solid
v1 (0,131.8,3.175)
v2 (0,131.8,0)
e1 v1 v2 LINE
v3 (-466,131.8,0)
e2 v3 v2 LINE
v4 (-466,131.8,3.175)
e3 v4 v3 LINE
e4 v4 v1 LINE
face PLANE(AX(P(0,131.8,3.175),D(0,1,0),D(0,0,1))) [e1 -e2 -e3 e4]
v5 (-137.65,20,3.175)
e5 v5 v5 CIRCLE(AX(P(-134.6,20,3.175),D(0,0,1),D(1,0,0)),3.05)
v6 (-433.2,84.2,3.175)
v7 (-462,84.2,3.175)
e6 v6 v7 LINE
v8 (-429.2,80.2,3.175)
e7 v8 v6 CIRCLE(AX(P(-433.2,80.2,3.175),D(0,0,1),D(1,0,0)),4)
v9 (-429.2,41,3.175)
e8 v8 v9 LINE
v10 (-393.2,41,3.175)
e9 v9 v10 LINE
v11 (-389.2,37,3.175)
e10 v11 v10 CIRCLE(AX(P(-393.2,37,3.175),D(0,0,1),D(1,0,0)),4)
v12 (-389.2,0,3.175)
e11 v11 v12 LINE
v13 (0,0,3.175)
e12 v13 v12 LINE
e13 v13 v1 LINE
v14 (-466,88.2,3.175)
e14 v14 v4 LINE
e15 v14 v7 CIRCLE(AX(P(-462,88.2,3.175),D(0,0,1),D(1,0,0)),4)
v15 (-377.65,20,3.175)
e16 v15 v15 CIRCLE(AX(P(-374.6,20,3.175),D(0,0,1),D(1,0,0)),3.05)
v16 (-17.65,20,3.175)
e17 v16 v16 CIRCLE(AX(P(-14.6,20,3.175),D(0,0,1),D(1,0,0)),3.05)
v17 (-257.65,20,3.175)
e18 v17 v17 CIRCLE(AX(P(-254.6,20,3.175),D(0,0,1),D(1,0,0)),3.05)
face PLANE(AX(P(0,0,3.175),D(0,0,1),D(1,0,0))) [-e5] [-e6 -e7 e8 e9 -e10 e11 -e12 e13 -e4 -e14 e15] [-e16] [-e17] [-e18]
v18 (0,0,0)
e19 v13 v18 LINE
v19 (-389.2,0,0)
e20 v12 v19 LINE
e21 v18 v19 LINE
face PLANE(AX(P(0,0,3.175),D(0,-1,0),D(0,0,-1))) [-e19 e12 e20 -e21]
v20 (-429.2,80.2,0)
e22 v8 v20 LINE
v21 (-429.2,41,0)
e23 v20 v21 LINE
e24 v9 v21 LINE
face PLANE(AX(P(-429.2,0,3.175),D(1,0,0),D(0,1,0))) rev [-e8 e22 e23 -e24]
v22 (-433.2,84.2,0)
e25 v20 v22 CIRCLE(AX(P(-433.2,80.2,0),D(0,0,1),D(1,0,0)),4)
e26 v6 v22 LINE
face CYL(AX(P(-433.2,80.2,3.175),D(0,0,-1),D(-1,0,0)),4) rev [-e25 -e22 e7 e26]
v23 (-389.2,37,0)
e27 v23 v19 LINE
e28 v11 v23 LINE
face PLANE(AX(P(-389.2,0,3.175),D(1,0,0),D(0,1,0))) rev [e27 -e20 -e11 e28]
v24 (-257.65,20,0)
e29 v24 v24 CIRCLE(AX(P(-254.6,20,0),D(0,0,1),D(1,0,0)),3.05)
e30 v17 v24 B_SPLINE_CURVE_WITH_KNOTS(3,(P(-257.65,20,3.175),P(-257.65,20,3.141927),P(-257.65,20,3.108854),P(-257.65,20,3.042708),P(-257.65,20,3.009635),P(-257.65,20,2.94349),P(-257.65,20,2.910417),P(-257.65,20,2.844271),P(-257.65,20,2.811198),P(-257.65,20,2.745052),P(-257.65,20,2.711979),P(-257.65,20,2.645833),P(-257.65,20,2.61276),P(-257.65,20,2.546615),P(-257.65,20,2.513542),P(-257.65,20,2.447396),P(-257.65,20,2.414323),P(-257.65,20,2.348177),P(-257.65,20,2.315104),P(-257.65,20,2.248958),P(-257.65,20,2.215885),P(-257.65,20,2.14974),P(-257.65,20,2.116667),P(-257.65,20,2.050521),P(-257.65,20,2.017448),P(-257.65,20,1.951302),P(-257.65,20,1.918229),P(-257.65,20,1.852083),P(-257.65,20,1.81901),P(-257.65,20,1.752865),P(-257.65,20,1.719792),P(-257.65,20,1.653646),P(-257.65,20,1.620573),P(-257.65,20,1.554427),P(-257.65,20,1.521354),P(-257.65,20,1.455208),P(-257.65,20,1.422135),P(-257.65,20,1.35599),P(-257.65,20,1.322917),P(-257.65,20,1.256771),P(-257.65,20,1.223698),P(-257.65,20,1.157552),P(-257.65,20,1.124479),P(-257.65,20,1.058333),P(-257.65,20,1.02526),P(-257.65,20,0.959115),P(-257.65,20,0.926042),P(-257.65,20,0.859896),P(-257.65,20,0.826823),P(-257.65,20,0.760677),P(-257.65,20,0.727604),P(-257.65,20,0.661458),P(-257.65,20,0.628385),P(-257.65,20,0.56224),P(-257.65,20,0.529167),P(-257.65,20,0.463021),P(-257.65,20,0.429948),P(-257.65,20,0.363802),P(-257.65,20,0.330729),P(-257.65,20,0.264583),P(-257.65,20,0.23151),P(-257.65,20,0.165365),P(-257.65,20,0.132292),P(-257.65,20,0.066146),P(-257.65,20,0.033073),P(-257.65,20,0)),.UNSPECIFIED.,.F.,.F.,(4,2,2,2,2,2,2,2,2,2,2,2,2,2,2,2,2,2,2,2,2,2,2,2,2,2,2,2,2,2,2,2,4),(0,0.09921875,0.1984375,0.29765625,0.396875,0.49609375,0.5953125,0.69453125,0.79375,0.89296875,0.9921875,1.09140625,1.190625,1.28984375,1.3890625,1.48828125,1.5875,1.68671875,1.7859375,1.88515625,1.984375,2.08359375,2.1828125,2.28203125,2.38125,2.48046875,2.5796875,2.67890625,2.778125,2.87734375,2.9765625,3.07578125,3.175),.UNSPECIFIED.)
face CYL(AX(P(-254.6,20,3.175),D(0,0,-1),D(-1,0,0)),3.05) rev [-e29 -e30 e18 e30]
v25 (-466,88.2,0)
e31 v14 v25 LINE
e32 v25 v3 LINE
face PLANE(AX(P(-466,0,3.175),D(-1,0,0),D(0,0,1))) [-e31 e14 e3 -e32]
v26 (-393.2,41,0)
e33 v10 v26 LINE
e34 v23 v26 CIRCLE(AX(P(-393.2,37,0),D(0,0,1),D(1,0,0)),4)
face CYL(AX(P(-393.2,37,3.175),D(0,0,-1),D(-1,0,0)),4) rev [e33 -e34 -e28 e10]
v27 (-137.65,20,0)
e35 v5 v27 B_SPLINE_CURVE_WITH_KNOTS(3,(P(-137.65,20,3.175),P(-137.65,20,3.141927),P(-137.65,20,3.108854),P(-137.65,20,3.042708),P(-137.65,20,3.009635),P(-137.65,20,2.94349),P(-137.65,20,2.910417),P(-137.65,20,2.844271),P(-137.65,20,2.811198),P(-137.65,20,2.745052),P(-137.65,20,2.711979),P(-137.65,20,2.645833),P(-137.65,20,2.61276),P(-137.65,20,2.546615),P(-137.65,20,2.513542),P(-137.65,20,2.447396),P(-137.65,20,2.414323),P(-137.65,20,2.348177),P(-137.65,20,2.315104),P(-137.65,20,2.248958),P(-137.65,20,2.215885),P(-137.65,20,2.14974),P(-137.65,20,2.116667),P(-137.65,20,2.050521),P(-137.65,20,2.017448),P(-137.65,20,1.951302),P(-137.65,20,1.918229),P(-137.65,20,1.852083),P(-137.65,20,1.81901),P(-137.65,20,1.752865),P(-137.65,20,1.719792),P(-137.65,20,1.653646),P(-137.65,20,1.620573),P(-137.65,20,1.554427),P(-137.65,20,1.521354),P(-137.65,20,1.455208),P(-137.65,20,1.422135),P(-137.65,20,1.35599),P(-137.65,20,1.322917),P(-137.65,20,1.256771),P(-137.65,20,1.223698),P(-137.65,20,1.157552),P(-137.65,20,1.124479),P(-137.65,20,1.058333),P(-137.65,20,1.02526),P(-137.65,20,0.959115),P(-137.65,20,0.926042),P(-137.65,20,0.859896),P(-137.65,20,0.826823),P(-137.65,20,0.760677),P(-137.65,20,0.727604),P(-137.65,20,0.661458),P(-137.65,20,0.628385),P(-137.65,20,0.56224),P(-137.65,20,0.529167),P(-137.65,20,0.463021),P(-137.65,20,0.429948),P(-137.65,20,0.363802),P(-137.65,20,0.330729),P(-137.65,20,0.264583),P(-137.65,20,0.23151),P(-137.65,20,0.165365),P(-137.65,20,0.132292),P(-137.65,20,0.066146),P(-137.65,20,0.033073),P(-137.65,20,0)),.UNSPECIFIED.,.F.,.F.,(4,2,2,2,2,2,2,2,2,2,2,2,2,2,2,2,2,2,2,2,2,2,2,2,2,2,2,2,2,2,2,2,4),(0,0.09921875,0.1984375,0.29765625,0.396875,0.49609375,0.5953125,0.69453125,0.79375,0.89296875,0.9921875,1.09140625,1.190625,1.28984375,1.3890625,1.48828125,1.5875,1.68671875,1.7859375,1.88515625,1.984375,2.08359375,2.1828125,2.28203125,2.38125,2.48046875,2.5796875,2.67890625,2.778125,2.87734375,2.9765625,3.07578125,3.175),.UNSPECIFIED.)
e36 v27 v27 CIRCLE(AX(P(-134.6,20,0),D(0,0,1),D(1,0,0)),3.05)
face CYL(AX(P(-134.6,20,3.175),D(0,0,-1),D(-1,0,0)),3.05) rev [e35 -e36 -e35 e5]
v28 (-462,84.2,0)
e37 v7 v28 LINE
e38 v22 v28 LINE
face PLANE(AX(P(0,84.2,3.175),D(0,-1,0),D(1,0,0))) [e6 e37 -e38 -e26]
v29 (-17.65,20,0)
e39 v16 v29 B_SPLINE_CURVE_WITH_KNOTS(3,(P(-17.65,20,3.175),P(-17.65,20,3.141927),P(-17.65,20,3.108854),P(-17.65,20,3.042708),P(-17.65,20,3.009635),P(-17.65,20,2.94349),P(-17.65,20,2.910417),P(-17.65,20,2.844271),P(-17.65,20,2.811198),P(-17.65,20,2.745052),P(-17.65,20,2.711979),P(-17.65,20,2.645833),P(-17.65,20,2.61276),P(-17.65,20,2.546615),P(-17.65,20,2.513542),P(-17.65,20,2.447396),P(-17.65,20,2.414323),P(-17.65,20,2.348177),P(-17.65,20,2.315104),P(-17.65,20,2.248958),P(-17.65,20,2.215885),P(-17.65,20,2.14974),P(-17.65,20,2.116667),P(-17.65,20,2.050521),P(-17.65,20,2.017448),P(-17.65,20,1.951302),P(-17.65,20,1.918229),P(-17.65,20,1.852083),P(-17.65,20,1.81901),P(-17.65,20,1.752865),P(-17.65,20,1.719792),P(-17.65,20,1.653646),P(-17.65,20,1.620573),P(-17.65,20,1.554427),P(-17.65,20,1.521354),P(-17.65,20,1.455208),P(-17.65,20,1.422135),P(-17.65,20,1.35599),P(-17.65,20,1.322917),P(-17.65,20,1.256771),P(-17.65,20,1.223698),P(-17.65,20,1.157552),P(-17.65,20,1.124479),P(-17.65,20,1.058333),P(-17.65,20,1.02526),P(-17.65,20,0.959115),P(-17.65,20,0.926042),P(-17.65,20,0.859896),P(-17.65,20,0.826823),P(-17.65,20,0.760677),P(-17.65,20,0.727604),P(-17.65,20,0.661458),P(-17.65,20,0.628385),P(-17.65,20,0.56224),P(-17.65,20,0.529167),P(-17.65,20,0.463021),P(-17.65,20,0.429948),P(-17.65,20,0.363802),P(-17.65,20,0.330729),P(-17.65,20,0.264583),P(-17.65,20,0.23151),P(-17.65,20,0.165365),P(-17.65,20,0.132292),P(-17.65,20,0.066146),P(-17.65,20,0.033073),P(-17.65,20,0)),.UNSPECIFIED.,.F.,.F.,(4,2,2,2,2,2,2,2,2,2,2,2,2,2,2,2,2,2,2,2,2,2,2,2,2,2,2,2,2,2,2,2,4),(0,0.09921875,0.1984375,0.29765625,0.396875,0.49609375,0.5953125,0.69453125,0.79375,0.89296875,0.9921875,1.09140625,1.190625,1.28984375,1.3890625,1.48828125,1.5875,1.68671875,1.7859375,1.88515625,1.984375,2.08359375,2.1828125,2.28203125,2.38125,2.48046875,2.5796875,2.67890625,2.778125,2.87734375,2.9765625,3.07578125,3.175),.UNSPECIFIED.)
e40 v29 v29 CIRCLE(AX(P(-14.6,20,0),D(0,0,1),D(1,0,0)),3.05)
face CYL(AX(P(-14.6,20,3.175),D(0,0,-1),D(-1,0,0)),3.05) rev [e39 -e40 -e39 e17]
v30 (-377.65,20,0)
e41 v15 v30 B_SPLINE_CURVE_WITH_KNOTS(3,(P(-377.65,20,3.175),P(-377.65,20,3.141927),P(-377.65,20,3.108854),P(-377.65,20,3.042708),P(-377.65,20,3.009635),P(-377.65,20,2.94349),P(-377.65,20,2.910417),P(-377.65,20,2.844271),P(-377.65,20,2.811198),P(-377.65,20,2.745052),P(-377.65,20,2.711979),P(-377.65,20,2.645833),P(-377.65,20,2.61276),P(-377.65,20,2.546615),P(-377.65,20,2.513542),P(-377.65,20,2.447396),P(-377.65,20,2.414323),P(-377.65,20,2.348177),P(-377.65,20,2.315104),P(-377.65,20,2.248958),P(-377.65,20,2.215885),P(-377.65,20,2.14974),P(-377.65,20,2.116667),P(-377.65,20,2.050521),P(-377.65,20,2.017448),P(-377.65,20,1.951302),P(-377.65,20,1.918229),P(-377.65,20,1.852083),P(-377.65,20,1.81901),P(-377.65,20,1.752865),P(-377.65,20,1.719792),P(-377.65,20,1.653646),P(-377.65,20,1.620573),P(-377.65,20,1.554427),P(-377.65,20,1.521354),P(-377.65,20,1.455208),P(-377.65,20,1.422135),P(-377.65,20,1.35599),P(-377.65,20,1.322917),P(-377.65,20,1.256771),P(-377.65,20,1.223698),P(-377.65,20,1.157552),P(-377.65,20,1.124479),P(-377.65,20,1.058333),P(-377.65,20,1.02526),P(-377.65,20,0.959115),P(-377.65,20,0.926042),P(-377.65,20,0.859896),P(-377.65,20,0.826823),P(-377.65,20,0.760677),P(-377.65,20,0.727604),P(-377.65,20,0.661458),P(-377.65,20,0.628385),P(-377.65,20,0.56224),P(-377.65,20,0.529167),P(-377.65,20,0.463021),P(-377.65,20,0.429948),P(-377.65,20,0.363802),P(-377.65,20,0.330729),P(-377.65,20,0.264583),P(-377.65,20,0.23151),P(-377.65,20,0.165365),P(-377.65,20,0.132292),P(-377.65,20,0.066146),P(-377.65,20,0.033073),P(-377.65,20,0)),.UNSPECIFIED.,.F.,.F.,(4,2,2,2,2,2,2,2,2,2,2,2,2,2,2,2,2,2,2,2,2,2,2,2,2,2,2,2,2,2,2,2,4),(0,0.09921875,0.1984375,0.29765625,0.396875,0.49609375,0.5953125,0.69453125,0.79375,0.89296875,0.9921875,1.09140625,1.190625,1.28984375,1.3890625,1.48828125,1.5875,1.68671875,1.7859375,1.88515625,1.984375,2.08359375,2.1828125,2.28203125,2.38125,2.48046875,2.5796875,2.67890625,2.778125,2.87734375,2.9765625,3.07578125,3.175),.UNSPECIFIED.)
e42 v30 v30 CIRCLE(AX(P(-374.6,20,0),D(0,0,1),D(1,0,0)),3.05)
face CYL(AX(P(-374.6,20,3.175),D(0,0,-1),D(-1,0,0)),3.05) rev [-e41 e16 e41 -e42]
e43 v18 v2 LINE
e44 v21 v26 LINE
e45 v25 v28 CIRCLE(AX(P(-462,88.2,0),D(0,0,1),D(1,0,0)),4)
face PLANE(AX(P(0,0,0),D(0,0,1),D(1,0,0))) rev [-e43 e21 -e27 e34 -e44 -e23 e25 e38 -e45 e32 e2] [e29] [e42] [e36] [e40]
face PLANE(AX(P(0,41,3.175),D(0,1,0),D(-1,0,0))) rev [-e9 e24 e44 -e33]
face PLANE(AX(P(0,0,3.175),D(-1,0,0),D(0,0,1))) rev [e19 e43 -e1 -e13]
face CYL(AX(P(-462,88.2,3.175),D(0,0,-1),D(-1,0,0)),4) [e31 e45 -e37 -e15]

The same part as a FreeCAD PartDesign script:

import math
import FreeCAD as App
import Part
import Sketcher
Q = App.Units.Quantity

doc = App.newDocument("Part")
body = doc.addObject("PartDesign::Body", "Body")

# Sketch on XY plane
sketch1 = body.newObject("Sketcher::SketchObject", "Sketch")
sketch1.AttachmentSupport = (doc.getObject("XY_Plane"), [""])
sketch1.MapMode = "FlatFace"
sketch1.addGeometry(Part.LineSegment(App.Vector(-466, 131.8, 0), App.Vector(-466, 88.2, 0)), False)
sketch1.addGeometry(Part.ArcOfCircle(Part.Circle(App.Vector(-462, 88.2, 0), App.Vector(0, 0, 1), 4), math.radians(180), math.radians(270)), False)
sketch1.addGeometry(Part.LineSegment(App.Vector(-462, 84.2, 0), App.Vector(-433.2, 84.2, 0)), False)
sketch1.addGeometry(Part.ArcOfCircle(Part.Circle(App.Vector(-433.2, 80.2, 0), App.Vector(0, 0, 1), 4), math.radians(0), math.radians(90)), False)
sketch1.addGeometry(Part.LineSegment(App.Vector(-429.2, 80.2, 0), App.Vector(-429.2, 41, 0)), False)
sketch1.addGeometry(Part.LineSegment(App.Vector(-429.2, 41, 0), App.Vector(-393.2, 41, 0)), False)
sketch1.addGeometry(Part.ArcOfCircle(Part.Circle(App.Vector(-393.2, 37, 0), App.Vector(0, 0, 1), 4), math.radians(0), math.radians(90)), False)
sketch1.addGeometry(Part.LineSegment(App.Vector(-389.2, 37, 0), App.Vector(-389.2, 0, 0)), False)
sketch1.addGeometry(Part.LineSegment(App.Vector(-389.2, 0, 0), App.Vector(0, 0, 0)), False)
sketch1.addGeometry(Part.LineSegment(App.Vector(0, 0, 0), App.Vector(0, 131.8, 0)), False)
sketch1.addGeometry(Part.LineSegment(App.Vector(0, 131.8, 0), App.Vector(-466, 131.8, 0)), False)
sketch1.addGeometry(Part.Circle(App.Vector(-14.6, 20, 0), App.Vector(0, 0, 1), 3), False)
sketch1.addGeometry(Part.Circle(App.Vector(-134.6, 20, 0), App.Vector(0, 0, 1), 3), False)
sketch1.addGeometry(Part.Circle(App.Vector(-254.6, 20, 0), App.Vector(0, 0, 1), 3), False)
sketch1.addGeometry(Part.Circle(App.Vector(-374.6, 20, 0), App.Vector(0, 0, 1), 3), False)
sketch1.addConstraint(Sketcher.Constraint("Tangent", 0, 2, 1, 1))
sketch1.addConstraint(Sketcher.Constraint("Tangent", 1, 2, 2, 1))
sketch1.addConstraint(Sketcher.Constraint("Tangent", 2, 2, 3, 2))
sketch1.addConstraint(Sketcher.Constraint("Tangent", 3, 1, 4, 1))
sketch1.addConstraint(Sketcher.Constraint("Coincident", 4, 2, 5, 1))
sketch1.addConstraint(Sketcher.Constraint("Tangent", 5, 2, 6, 2))
sketch1.addConstraint(Sketcher.Constraint("Tangent", 6, 1, 7, 1))
sketch1.addConstraint(Sketcher.Constraint("Coincident", 7, 2, 8, 1))
sketch1.addConstraint(Sketcher.Constraint("Coincident", 8, 2, 9, 1))
sketch1.addConstraint(Sketcher.Constraint("Coincident", 9, 2, 10, 1))
sketch1.addConstraint(Sketcher.Constraint("Coincident", 10, 2, 0, 1))
sketch1.addConstraint(Sketcher.Constraint("Vertical", 0))
sketch1.addConstraint(Sketcher.Constraint("Horizontal", 2))
sketch1.addConstraint(Sketcher.Constraint("Vertical", 4))
sketch1.addConstraint(Sketcher.Constraint("Horizontal", 5))
sketch1.addConstraint(Sketcher.Constraint("Vertical", 7))
sketch1.addConstraint(Sketcher.Constraint("Horizontal", 8))
sketch1.addConstraint(Sketcher.Constraint("Vertical", 9))
sketch1.addConstraint(Sketcher.Constraint("Horizontal", 10))
sketch1.addConstraint(Sketcher.Constraint("Coincident", 8, 2, -1, 1))
sketch1.addConstraint(Sketcher.Constraint("Equal", 1, 3))
sketch1.addConstraint(Sketcher.Constraint("Equal", 3, 6))
sketch1.addConstraint(Sketcher.Constraint("Equal", 11, 12))
sketch1.addConstraint(Sketcher.Constraint("Equal", 12, 13))
sketch1.addConstraint(Sketcher.Constraint("Equal", 13, 14))
sketch1.addConstraint(Sketcher.Constraint("Horizontal", 11, 3, 12, 3))
sketch1.addConstraint(Sketcher.Constraint("Horizontal", 12, 3, 13, 3))
sketch1.addConstraint(Sketcher.Constraint("Horizontal", 13, 3, 14, 3))
sketch1.addConstraint(Sketcher.Constraint("Radius", 1, Q("4 mm")))
sketch1.addConstraint(Sketcher.Constraint("Diameter", 11, Q("6.1 mm")))
sketch1.addConstraint(Sketcher.Constraint("DistanceX", 5, 1, 5, 2, Q("36 mm")))
sketch1.addConstraint(Sketcher.Constraint("DistanceX", 10, 2, 10, 1, Q("466 mm")))
sketch1.addConstraint(Sketcher.Constraint("DistanceY", 7, 2, 7, 1, Q("37 mm")))
sketch1.addConstraint(Sketcher.Constraint("DistanceX", 2, 1, 2, 2, Q("28.8 mm")))
sketch1.addConstraint(Sketcher.Constraint("DistanceY", 0, 2, 0, 1, Q("43.6 mm")))
sketch1.addConstraint(Sketcher.Constraint("DistanceY", 4, 2, 4, 1, Q("39.2 mm")))
sketch1.addConstraint(Sketcher.Constraint("DistanceY", -1, 1, 11, 3, Q("20 mm")))
sketch1.addConstraint(Sketcher.Constraint("DistanceX", 12, 3, 11, 3, Q("120 mm")))
sketch1.addConstraint(Sketcher.Constraint("DistanceX", 13, 3, 12, 3, Q("120 mm")))
sketch1.addConstraint(Sketcher.Constraint("DistanceX", 14, 3, 13, 3, Q("120 mm")))
sketch1.addConstraint(Sketcher.Constraint("DistanceX", 11, 3, -1, 1, Q("14.6 mm")))
pad1 = body.newObject("PartDesign::Pad", "Pad")
pad1.Profile = sketch1
pad1.Length = 3.175

doc.recompute()
